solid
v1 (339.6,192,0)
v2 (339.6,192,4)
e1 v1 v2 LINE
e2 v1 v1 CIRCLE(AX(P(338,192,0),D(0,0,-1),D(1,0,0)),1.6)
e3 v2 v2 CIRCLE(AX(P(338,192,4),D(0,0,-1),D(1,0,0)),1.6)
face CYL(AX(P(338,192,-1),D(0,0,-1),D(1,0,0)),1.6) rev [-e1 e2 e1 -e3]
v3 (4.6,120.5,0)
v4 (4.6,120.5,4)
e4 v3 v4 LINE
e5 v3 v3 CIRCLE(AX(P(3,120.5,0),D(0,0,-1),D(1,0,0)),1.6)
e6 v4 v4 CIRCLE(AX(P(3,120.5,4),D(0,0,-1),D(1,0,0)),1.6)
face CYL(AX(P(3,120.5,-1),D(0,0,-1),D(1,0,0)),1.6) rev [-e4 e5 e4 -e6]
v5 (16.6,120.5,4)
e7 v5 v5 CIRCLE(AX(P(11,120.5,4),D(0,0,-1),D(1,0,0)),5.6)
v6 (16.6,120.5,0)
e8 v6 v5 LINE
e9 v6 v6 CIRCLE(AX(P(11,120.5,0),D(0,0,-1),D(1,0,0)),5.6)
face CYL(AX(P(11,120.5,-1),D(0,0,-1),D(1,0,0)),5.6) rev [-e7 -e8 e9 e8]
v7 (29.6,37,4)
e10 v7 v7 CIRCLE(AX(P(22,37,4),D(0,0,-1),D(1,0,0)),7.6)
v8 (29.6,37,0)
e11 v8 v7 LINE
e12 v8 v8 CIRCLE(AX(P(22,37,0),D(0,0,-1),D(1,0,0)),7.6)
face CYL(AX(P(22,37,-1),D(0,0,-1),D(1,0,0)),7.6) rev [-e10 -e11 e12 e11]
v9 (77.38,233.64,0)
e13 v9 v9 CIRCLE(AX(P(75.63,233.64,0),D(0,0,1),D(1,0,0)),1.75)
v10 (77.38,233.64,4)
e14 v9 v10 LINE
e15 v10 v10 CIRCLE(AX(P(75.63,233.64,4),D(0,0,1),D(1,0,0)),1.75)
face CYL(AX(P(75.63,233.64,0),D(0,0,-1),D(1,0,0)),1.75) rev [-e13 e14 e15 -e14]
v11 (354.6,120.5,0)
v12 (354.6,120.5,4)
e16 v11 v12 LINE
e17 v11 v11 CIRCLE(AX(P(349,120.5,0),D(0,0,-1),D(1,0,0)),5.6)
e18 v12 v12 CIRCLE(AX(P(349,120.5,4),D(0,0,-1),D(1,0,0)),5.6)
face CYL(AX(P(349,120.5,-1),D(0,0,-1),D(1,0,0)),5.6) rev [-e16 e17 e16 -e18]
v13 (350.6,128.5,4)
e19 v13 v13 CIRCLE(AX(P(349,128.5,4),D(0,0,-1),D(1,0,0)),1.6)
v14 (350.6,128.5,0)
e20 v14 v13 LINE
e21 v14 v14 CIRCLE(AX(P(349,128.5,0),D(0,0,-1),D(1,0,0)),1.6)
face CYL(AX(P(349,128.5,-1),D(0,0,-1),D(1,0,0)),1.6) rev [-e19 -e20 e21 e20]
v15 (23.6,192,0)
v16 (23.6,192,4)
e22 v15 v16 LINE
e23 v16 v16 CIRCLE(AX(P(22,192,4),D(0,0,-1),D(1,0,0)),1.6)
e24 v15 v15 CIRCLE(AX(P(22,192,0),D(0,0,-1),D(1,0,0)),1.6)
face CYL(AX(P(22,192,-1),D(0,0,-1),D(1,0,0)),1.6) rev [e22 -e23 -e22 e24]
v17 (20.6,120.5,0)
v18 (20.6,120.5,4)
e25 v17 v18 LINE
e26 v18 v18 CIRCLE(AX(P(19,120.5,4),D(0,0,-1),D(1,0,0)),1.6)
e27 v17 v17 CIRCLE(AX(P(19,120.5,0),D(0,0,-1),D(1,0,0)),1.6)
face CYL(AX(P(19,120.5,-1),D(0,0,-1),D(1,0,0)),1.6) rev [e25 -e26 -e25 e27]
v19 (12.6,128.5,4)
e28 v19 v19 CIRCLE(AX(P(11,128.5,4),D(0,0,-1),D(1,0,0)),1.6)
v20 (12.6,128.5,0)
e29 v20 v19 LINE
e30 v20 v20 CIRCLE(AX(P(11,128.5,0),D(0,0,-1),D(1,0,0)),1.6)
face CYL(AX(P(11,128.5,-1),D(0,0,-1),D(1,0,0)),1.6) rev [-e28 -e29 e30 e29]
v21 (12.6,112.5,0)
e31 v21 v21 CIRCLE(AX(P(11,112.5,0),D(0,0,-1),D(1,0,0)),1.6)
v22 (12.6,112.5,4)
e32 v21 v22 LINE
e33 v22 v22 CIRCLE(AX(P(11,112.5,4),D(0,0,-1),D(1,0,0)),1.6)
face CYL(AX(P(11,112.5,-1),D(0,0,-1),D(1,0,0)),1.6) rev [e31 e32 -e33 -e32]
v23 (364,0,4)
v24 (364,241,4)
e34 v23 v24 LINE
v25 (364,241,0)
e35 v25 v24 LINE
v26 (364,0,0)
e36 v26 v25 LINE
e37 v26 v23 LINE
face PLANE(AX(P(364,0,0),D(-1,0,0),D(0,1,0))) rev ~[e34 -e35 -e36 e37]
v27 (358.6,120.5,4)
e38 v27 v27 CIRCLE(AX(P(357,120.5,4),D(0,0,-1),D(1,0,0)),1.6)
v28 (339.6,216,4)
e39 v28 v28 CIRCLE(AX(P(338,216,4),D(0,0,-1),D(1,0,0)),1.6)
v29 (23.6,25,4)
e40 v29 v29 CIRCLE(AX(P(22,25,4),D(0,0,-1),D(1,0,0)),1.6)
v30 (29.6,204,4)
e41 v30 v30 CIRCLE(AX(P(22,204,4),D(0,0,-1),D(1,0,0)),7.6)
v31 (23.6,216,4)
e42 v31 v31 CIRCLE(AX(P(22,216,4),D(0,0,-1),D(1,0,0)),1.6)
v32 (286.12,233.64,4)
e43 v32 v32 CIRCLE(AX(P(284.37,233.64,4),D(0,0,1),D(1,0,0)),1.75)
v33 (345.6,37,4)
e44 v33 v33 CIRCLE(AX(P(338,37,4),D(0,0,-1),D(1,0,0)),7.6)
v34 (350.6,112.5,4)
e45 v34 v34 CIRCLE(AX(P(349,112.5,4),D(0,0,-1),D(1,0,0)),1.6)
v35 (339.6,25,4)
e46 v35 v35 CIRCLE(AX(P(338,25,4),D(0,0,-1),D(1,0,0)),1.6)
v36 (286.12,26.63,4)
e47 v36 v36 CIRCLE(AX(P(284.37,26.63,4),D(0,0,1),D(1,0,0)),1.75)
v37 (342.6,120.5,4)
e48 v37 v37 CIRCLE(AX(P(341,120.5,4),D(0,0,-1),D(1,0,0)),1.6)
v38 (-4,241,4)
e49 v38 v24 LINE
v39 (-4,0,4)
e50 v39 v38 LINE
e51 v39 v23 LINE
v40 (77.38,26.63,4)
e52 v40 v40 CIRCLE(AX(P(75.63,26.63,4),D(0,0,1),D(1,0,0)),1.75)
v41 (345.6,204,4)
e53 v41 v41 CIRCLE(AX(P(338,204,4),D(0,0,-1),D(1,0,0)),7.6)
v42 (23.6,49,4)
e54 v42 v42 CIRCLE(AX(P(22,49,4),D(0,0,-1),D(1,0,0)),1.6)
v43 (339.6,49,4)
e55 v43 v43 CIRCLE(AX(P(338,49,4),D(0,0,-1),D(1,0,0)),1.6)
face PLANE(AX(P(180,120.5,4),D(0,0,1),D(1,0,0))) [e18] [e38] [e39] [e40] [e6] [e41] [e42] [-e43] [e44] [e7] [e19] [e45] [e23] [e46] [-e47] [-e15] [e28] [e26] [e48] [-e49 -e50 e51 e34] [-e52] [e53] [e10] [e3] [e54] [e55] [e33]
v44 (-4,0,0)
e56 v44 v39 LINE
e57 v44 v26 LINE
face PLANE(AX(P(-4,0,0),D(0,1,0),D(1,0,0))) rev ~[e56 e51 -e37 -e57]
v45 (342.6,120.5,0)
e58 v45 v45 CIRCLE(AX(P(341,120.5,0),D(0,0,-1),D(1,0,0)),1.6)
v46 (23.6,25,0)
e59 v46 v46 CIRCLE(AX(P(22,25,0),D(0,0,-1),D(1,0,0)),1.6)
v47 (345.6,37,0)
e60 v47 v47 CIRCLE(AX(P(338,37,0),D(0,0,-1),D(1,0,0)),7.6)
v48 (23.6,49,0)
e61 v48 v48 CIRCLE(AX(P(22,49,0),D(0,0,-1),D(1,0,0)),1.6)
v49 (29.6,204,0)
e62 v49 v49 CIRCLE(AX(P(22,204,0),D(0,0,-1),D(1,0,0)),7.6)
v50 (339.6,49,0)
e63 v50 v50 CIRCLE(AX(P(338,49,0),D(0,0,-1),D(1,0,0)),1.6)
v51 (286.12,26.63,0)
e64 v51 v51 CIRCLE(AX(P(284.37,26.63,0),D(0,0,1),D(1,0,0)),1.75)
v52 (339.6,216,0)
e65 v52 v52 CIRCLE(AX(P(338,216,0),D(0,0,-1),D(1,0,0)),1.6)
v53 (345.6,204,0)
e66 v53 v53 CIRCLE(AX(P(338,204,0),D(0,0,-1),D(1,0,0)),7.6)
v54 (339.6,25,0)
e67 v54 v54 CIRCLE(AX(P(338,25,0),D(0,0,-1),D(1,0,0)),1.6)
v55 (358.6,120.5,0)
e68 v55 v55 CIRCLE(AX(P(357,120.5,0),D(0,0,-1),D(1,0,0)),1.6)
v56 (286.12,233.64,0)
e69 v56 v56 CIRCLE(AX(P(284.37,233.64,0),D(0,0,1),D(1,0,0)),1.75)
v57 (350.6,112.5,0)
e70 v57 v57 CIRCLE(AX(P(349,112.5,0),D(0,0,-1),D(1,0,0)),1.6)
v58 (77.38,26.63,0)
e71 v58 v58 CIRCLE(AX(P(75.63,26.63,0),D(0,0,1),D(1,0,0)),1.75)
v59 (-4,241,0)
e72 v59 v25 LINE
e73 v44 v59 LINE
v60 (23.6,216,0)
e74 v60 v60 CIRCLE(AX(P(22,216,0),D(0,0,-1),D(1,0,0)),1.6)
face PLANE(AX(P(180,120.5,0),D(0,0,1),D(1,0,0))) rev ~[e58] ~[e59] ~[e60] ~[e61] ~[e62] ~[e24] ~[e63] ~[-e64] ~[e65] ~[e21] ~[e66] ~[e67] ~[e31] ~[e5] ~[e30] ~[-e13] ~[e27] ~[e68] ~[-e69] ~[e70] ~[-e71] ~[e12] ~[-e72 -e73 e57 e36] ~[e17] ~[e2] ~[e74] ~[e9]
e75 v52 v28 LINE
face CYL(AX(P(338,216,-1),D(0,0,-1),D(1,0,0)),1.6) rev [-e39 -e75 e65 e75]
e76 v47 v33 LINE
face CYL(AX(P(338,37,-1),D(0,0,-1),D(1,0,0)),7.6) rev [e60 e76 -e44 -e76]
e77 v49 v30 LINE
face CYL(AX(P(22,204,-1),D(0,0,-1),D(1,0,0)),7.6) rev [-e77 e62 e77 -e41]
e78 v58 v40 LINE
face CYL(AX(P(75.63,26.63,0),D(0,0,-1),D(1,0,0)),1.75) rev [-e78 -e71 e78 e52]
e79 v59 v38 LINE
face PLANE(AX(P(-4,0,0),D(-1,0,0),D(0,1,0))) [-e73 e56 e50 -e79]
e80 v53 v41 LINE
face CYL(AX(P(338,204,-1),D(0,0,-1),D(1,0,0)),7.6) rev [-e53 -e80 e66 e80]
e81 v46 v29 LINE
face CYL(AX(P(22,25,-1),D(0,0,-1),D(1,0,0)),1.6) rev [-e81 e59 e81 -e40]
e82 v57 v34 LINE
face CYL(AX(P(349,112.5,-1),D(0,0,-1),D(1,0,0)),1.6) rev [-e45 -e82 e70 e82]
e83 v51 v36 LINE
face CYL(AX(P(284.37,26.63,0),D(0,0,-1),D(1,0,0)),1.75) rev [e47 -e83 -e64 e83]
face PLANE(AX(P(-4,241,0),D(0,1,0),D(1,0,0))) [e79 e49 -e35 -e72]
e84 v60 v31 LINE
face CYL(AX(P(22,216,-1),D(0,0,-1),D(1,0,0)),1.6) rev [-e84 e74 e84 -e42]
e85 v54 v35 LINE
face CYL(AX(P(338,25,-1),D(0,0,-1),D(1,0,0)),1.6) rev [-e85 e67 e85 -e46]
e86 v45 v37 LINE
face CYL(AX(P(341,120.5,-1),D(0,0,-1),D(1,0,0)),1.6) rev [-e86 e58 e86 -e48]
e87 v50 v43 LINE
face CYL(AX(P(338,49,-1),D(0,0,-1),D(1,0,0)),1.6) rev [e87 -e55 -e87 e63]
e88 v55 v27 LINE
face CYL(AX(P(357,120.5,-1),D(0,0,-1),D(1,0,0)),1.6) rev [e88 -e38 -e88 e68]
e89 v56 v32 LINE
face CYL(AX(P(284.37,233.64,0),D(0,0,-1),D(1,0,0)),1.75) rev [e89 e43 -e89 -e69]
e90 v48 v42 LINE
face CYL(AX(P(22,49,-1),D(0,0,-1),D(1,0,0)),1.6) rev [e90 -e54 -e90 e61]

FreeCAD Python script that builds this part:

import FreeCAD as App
import Part
import Sketcher


def add_polygon(sketch, points):
    """Adds a closed chain of lines whose ends are joined by coincident constraints."""
    first, n = sketch.GeometryCount, len(points)
    for a, b in zip(points, points[1:] + points[:1]):
        sketch.addGeometry(Part.LineSegment(App.Vector(*a, 0), App.Vector(*b, 0)), False)
    for i in range(n):
        sketch.addConstraint(Sketcher.Constraint("Coincident", first + i, 2, first + (i + 1) % n, 1))

doc = App.newDocument("Part")
body = doc.addObject("PartDesign::Body", "Body")

sketch1 = body.newObject("Sketcher::SketchObject", "Sketch")
sketch1.AttachmentSupport = (doc.getObject("XY_Plane"), [""])
sketch1.MapMode = "FlatFace"
sketch1.addGeometry(Part.Circle(App.Vector(75.6, 233.6, 0), App.Vector(0, 0, 1), 1.8), False)
sketch1.addConstraint(Sketcher.Constraint("Diameter", 0, 3.5))
sketch1.addConstraint(Sketcher.Constraint("DistanceX", -1, 1, 0, 3, 75.63))
sketch1.addConstraint(Sketcher.Constraint("DistanceY", -1, 1, 0, 3, 233.64))
pad1 = body.newObject("PartDesign::Pad", "Pad")
pad1.Profile = sketch1
pad1.Length = 4
body2 = doc.addObject("PartDesign::Body", "Body001")

sketch2 = body2.newObject("Sketcher::SketchObject", "Sketch001")
sketch2.AttachmentSupport = (doc.getObject("XY_Plane001"), [""])
sketch2.MapMode = "FlatFace"
sketch2.addGeometry(Part.Circle(App.Vector(284.4, 233.6, 0), App.Vector(0, 0, 1), 1.8), False)
sketch2.addConstraint(Sketcher.Constraint("Diameter", 0, 3.5))
sketch2.addConstraint(Sketcher.Constraint("DistanceX", -1, 1, 0, 3, 284.37))
sketch2.addConstraint(Sketcher.Constraint("DistanceY", -1, 1, 0, 3, 233.64))
pad2 = body2.newObject("PartDesign::Pad", "Pad001")
pad2.Profile = sketch2
pad2.Length = 4
body3 = doc.addObject("PartDesign::Body", "Body002")

sketch3 = body3.newObject("Sketcher::SketchObject", "Sketch002")
sketch3.AttachmentSupport = (doc.getObject("XY_Plane002"), [""])
sketch3.MapMode = "FlatFace"
sketch3.addGeometry(Part.Circle(App.Vector(284.4, 26.6, 0), App.Vector(0, 0, 1), 1.8), False)
sketch3.addConstraint(Sketcher.Constraint("Diameter", 0, 3.5))
sketch3.addConstraint(Sketcher.Constraint("DistanceX", -1, 1, 0, 3, 284.37))
sketch3.addConstraint(Sketcher.Constraint("DistanceY", -1, 1, 0, 3, 26.63))
pad3 = body3.newObject("PartDesign::Pad", "Pad002")
pad3.Profile = sketch3
pad3.Length = 4
body4 = doc.addObject("PartDesign::Body", "Body003")
body4.AllowCompound = True

sketch4 = body4.newObject("Sketcher::SketchObject", "Sketch003")
sketch4.AttachmentSupport = (doc.getObject("XY_Plane003"), [""])
sketch4.MapMode = "FlatFace"
sketch4.addGeometry(Part.Circle(App.Vector(75.6, 26.6, 0), App.Vector(0, 0, 1), 1.8), False)
sketch4.addConstraint(Sketcher.Constraint("Diameter", 0, 3.5))
sketch4.addConstraint(Sketcher.Constraint("DistanceX", -1, 1, 0, 3, 75.63))
sketch4.addConstraint(Sketcher.Constraint("DistanceY", -1, 1, 0, 3, 26.63))
pad4 = body4.newObject("PartDesign::Pad", "Pad003")
pad4.Profile = sketch4
pad4.Length = 4
doc.recompute()

boolean = body4.newObject("PartDesign::Boolean", "Boolean")
boolean.Type = "Fuse"
boolean.addObjects([body])
doc.recompute()

boolean2 = body4.newObject("PartDesign::Boolean", "Boolean001")
boolean2.Type = "Fuse"
boolean2.addObjects([body2])
doc.recompute()

boolean3 = body4.newObject("PartDesign::Boolean", "Boolean002")
boolean3.Type = "Fuse"
boolean3.addObjects([body3])
body5 = doc.addObject("PartDesign::Body", "Body004")

sketch5 = body5.newObject("Sketcher::SketchObject", "Sketch004")
sketch5.AttachmentSupport = (doc.getObject("XY_Plane004"), [""])
sketch5.MapMode = "FlatFace"
sketch5.AttachmentOffset = App.Placement(App.Vector(0, 0, -1), App.Rotation())
sketch5.addGeometry(Part.Circle(App.Vector(338, 25, 0), App.Vector(0, 0, 1), 1.6), False)
sketch5.addConstraint(Sketcher.Constraint("Diameter", 0, 3.2))
sketch5.addConstraint(Sketcher.Constraint("DistanceX", -1, 1, 0, 3, 338.0))
sketch5.addConstraint(Sketcher.Constraint("DistanceY", -1, 1, 0, 3, 25.0))
pad5 = body5.newObject("PartDesign::Pad", "Pad004")
pad5.Profile = sketch5
pad5.Length = 10
body6 = doc.addObject("PartDesign::Body", "Body005")

sketch6 = body6.newObject("Sketcher::SketchObject", "Sketch005")
sketch6.AttachmentSupport = (doc.getObject("XY_Plane005"), [""])
sketch6.MapMode = "FlatFace"
sketch6.AttachmentOffset = App.Placement(App.Vector(0, 0, -1), App.Rotation())
sketch6.addGeometry(Part.Circle(App.Vector(338, 49, 0), App.Vector(0, 0, 1), 1.6), False)
sketch6.addConstraint(Sketcher.Constraint("Diameter", 0, 3.2))
sketch6.addConstraint(Sketcher.Constraint("DistanceX", -1, 1, 0, 3, 338.0))
sketch6.addConstraint(Sketcher.Constraint("DistanceY", -1, 1, 0, 3, 49.0))
pad6 = body6.newObject("PartDesign::Pad", "Pad005")
pad6.Profile = sketch6
pad6.Length = 10
body7 = doc.addObject("PartDesign::Body", "Body006")

sketch7 = body7.newObject("Sketcher::SketchObject", "Sketch006")
sketch7.AttachmentSupport = (doc.getObject("XY_Plane006"), [""])
sketch7.MapMode = "FlatFace"
sketch7.AttachmentOffset = App.Placement(App.Vector(0, 0, -1), App.Rotation())
sketch7.addGeometry(Part.Circle(App.Vector(338, 192, 0), App.Vector(0, 0, 1), 1.6), False)
sketch7.addConstraint(Sketcher.Constraint("Diameter", 0, 3.2))
sketch7.addConstraint(Sketcher.Constraint("DistanceX", -1, 1, 0, 3, 338.0))
sketch7.addConstraint(Sketcher.Constraint("DistanceY", -1, 1, 0, 3, 192.0))
pad7 = body7.newObject("PartDesign::Pad", "Pad006")
pad7.Profile = sketch7
pad7.Length = 10
body8 = doc.addObject("PartDesign::Body", "Body007")

sketch8 = body8.newObject("Sketcher::SketchObject", "Sketch007")
sketch8.AttachmentSupport = (doc.getObject("XY_Plane007"), [""])
sketch8.MapMode = "FlatFace"
sketch8.AttachmentOffset = App.Placement(App.Vector(0, 0, -1), App.Rotation())
sketch8.addGeometry(Part.Circle(App.Vector(338, 216, 0), App.Vector(0, 0, 1), 1.6), False)
sketch8.addConstraint(Sketcher.Constraint("Diameter", 0, 3.2))
sketch8.addConstraint(Sketcher.Constraint("DistanceX", -1, 1, 0, 3, 338.0))
sketch8.addConstraint(Sketcher.Constraint("DistanceY", -1, 1, 0, 3, 216.0))
pad8 = body8.newObject("PartDesign::Pad", "Pad007")
pad8.Profile = sketch8
pad8.Length = 10
body9 = doc.addObject("PartDesign::Body", "Body008")

sketch9 = body9.newObject("Sketcher::SketchObject", "Sketch008")
sketch9.AttachmentSupport = (doc.getObject("XY_Plane008"), [""])
sketch9.MapMode = "FlatFace"
sketch9.AttachmentOffset = App.Placement(App.Vector(0, 0, -1), App.Rotation())
sketch9.addGeometry(Part.Circle(App.Vector(349, 128.5, 0), App.Vector(0, 0, 1), 1.6), False)
sketch9.addConstraint(Sketcher.Constraint("Diameter", 0, 3.2))
sketch9.addConstraint(Sketcher.Constraint("DistanceX", -1, 1, 0, 3, 349.0))
sketch9.addConstraint(Sketcher.Constraint("DistanceY", -1, 1, 0, 3, 128.5))
pad9 = body9.newObject("PartDesign::Pad", "Pad008")
pad9.Profile = sketch9
pad9.Length = 10
body10 = doc.addObject("PartDesign::Body", "Body009")

sketch10 = body10.newObject("Sketcher::SketchObject", "Sketch009")
sketch10.AttachmentSupport = (doc.getObject("XY_Plane009"), [""])
sketch10.MapMode = "FlatFace"
sketch10.AttachmentOffset = App.Placement(App.Vector(0, 0, -1), App.Rotation())
sketch10.addGeometry(Part.Circle(App.Vector(349, 112.5, 0), App.Vector(0, 0, 1), 1.6), False)
sketch10.addConstraint(Sketcher.Constraint("Diameter", 0, 3.2))
sketch10.addConstraint(Sketcher.Constraint("DistanceX", -1, 1, 0, 3, 349.0))
sketch10.addConstraint(Sketcher.Constraint("DistanceY", -1, 1, 0, 3, 112.5))
pad10 = body10.newObject("PartDesign::Pad", "Pad009")
pad10.Profile = sketch10
pad10.Length = 10
body11 = doc.addObject("PartDesign::Body", "Body010")

sketch11 = body11.newObject("Sketcher::SketchObject", "Sketch010")
sketch11.AttachmentSupport = (doc.getObject("XY_Plane010"), [""])
sketch11.MapMode = "FlatFace"
sketch11.AttachmentOffset = App.Placement(App.Vector(0, 0, -1), App.Rotation())
sketch11.addGeometry(Part.Circle(App.Vector(357, 120.5, 0), App.Vector(0, 0, 1), 1.6), False)
sketch11.addConstraint(Sketcher.Constraint("Diameter", 0, 3.2))
sketch11.addConstraint(Sketcher.Constraint("DistanceX", -1, 1, 0, 3, 357.0))
sketch11.addConstraint(Sketcher.Constraint("DistanceY", -1, 1, 0, 3, 120.5))
pad11 = body11.newObject("PartDesign::Pad", "Pad010")
pad11.Profile = sketch11
pad11.Length = 10
body12 = doc.addObject("PartDesign::Body", "Body011")

sketch12 = body12.newObject("Sketcher::SketchObject", "Sketch011")
sketch12.AttachmentSupport = (doc.getObject("XY_Plane011"), [""])
sketch12.MapMode = "FlatFace"
sketch12.AttachmentOffset = App.Placement(App.Vector(0, 0, -1), App.Rotation())
sketch12.addGeometry(Part.Circle(App.Vector(341, 120.5, 0), App.Vector(0, 0, 1), 1.6), False)
sketch12.addConstraint(Sketcher.Constraint("Diameter", 0, 3.2))
sketch12.addConstraint(Sketcher.Constraint("DistanceX", -1, 1, 0, 3, 341.0))
sketch12.addConstraint(Sketcher.Constraint("DistanceY", -1, 1, 0, 3, 120.5))
pad12 = body12.newObject("PartDesign::Pad", "Pad011")
pad12.Profile = sketch12
pad12.Length = 10
body13 = doc.addObject("PartDesign::Body", "Body012")

sketch13 = body13.newObject("Sketcher::SketchObject", "Sketch012")
sketch13.AttachmentSupport = (doc.getObject("XY_Plane012"), [""])
sketch13.MapMode = "FlatFace"
sketch13.AttachmentOffset = App.Placement(App.Vector(0, 0, -1), App.Rotation())
sketch13.addGeometry(Part.Circle(App.Vector(349, 120, 0), App.Vector(0, 0, 1), 6), False)
sketch13.addConstraint(Sketcher.Constraint("Diameter", 0, 11.2))
sketch13.addConstraint(Sketcher.Constraint("DistanceX", -1, 1, 0, 3, 349.0))
sketch13.addConstraint(Sketcher.Constraint("DistanceY", -1, 1, 0, 3, 120.5))
pad13 = body13.newObject("PartDesign::Pad", "Pad012")
pad13.Profile = sketch13
pad13.Length = 10
body14 = doc.addObject("PartDesign::Body", "Body013")

sketch14 = body14.newObject("Sketcher::SketchObject", "Sketch013")
sketch14.AttachmentSupport = (doc.getObject("XY_Plane013"), [""])
sketch14.MapMode = "FlatFace"
sketch14.AttachmentOffset = App.Placement(App.Vector(0, 0, -1), App.Rotation())
sketch14.addGeometry(Part.Circle(App.Vector(22, 216, 0), App.Vector(0, 0, 1), 1.6), False)
sketch14.addConstraint(Sketcher.Constraint("Diameter", 0, 3.2))
sketch14.addConstraint(Sketcher.Constraint("DistanceX", -1, 1, 0, 3, 22.0))
sketch14.addConstraint(Sketcher.Constraint("DistanceY", -1, 1, 0, 3, 216.0))
pad14 = body14.newObject("PartDesign::Pad", "Pad013")
pad14.Profile = sketch14
pad14.Length = 10
body15 = doc.addObject("PartDesign::Body", "Body014")

sketch15 = body15.newObject("Sketcher::SketchObject", "Sketch014")
sketch15.AttachmentSupport = (doc.getObject("XY_Plane014"), [""])
sketch15.MapMode = "FlatFace"
sketch15.AttachmentOffset = App.Placement(App.Vector(0, 0, -1), App.Rotation())
sketch15.addGeometry(Part.Circle(App.Vector(11, 112.5, 0), App.Vector(0, 0, 1), 1.6), False)
sketch15.addConstraint(Sketcher.Constraint("Diameter", 0, 3.2))
sketch15.addConstraint(Sketcher.Constraint("DistanceX", -1, 1, 0, 3, 11.0))
sketch15.addConstraint(Sketcher.Constraint("DistanceY", -1, 1, 0, 3, 112.5))
pad15 = body15.newObject("PartDesign::Pad", "Pad014")
pad15.Profile = sketch15
pad15.Length = 10
body16 = doc.addObject("PartDesign::Body", "Body015")

sketch16 = body16.newObject("Sketcher::SketchObject", "Sketch015")
sketch16.AttachmentSupport = (doc.getObject("XY_Plane015"), [""])
sketch16.MapMode = "FlatFace"
sketch16.AttachmentOffset = App.Placement(App.Vector(0, 0, -1), App.Rotation())
sketch16.addGeometry(Part.Circle(App.Vector(19, 120.5, 0), App.Vector(0, 0, 1), 1.6), False)
sketch16.addConstraint(Sketcher.Constraint("Diameter", 0, 3.2))
sketch16.addConstraint(Sketcher.Constraint("DistanceX", -1, 1, 0, 3, 19.0))
sketch16.addConstraint(Sketcher.Constraint("DistanceY", -1, 1, 0, 3, 120.5))
pad16 = body16.newObject("PartDesign::Pad", "Pad015")
pad16.Profile = sketch16
pad16.Length = 10
body17 = doc.addObject("PartDesign::Body", "Body016")

sketch17 = body17.newObject("Sketcher::SketchObject", "Sketch016")
sketch17.AttachmentSupport = (doc.getObject("XY_Plane016"), [""])
sketch17.MapMode = "FlatFace"
sketch17.AttachmentOffset = App.Placement(App.Vector(0, 0, -1), App.Rotation())
sketch17.addGeometry(Part.Circle(App.Vector(11, 128.5, 0), App.Vector(0, 0, 1), 1.6), False)
sketch17.addConstraint(Sketcher.Constraint("Diameter", 0, 3.2))
sketch17.addConstraint(Sketcher.Constraint("DistanceX", -1, 1, 0, 3, 11.0))
sketch17.addConstraint(Sketcher.Constraint("DistanceY", -1, 1, 0, 3, 128.5))
pad17 = body17.newObject("PartDesign::Pad", "Pad016")
pad17.Profile = sketch17
pad17.Length = 10
body18 = doc.addObject("PartDesign::Body", "Body017")

sketch18 = body18.newObject("Sketcher::SketchObject", "Sketch017")
sketch18.AttachmentSupport = (doc.getObject("XY_Plane017"), [""])
sketch18.MapMode = "FlatFace"
sketch18.AttachmentOffset = App.Placement(App.Vector(0, 0, -1), App.Rotation())
sketch18.addGeometry(Part.Circle(App.Vector(3, 120.5, 0), App.Vector(0, 0, 1), 1.6), False)
sketch18.addConstraint(Sketcher.Constraint("Diameter", 0, 3.2))
sketch18.addConstraint(Sketcher.Constraint("DistanceX", -1, 1, 0, 3, 3.0))
sketch18.addConstraint(Sketcher.Constraint("DistanceY", -1, 1, 0, 3, 120.5))
pad18 = body18.newObject("PartDesign::Pad", "Pad017")
pad18.Profile = sketch18
pad18.Length = 10
body19 = doc.addObject("PartDesign::Body", "Body018")

sketch19 = body19.newObject("Sketcher::SketchObject", "Sketch018")
sketch19.AttachmentSupport = (doc.getObject("XY_Plane018"), [""])
sketch19.MapMode = "FlatFace"
sketch19.AttachmentOffset = App.Placement(App.Vector(0, 0, -1), App.Rotation())
sketch19.addGeometry(Part.Circle(App.Vector(11, 120, 0), App.Vector(0, 0, 1), 6), False)
sketch19.addConstraint(Sketcher.Constraint("Diameter", 0, 11.2))
sketch19.addConstraint(Sketcher.Constraint("DistanceX", -1, 1, 0, 3, 11.0))
sketch19.addConstraint(Sketcher.Constraint("DistanceY", -1, 1, 0, 3, 120.5))
pad19 = body19.newObject("PartDesign::Pad", "Pad018")
pad19.Profile = sketch19
pad19.Length = 10
body20 = doc.addObject("PartDesign::Body", "Body019")

sketch20 = body20.newObject("Sketcher::SketchObject", "Sketch019")
sketch20.AttachmentSupport = (doc.getObject("XY_Plane019"), [""])
sketch20.MapMode = "FlatFace"
sketch20.AttachmentOffset = App.Placement(App.Vector(0, 0, -1), App.Rotation())
sketch20.addGeometry(Part.Circle(App.Vector(22, 192, 0), App.Vector(0, 0, 1), 1.6), False)
sketch20.addConstraint(Sketcher.Constraint("Diameter", 0, 3.2))
sketch20.addConstraint(Sketcher.Constraint("DistanceX", -1, 1, 0, 3, 22.0))
sketch20.addConstraint(Sketcher.Constraint("DistanceY", -1, 1, 0, 3, 192.0))
pad20 = body20.newObject("PartDesign::Pad", "Pad019")
pad20.Profile = sketch20
pad20.Length = 10
body21 = doc.addObject("PartDesign::Body", "Body020")

sketch21 = body21.newObject("Sketcher::SketchObject", "Sketch020")
sketch21.AttachmentSupport = (doc.getObject("XY_Plane020"), [""])
sketch21.MapMode = "FlatFace"
sketch21.AttachmentOffset = App.Placement(App.Vector(0, 0, -1), App.Rotation())
sketch21.addGeometry(Part.Circle(App.Vector(22, 49, 0), App.Vector(0, 0, 1), 1.6), False)
sketch21.addConstraint(Sketcher.Constraint("Diameter", 0, 3.2))
sketch21.addConstraint(Sketcher.Constraint("DistanceX", -1, 1, 0, 3, 22.0))
sketch21.addConstraint(Sketcher.Constraint("DistanceY", -1, 1, 0, 3, 49.0))
pad21 = body21.newObject("PartDesign::Pad", "Pad020")
pad21.Profile = sketch21
pad21.Length = 10
body22 = doc.addObject("PartDesign::Body", "Body021")

sketch22 = body22.newObject("Sketcher::SketchObject", "Sketch021")
sketch22.AttachmentSupport = (doc.getObject("XY_Plane021"), [""])
sketch22.MapMode = "FlatFace"
sketch22.AttachmentOffset = App.Placement(App.Vector(0, 0, -1), App.Rotation())
sketch22.addGeometry(Part.Circle(App.Vector(22, 25, 0), App.Vector(0, 0, 1), 1.6), False)
sketch22.addConstraint(Sketcher.Constraint("Diameter", 0, 3.2))
sketch22.addConstraint(Sketcher.Constraint("DistanceX", -1, 1, 0, 3, 22.0))
sketch22.addConstraint(Sketcher.Constraint("DistanceY", -1, 1, 0, 3, 25.0))
pad22 = body22.newObject("PartDesign::Pad", "Pad021")
pad22.Profile = sketch22
pad22.Length = 10
body23 = doc.addObject("PartDesign::Body", "Body022")

sketch23 = body23.newObject("Sketcher::SketchObject", "Sketch022")
sketch23.AttachmentSupport = (doc.getObject("XY_Plane022"), [""])
sketch23.MapMode = "FlatFace"
sketch23.AttachmentOffset = App.Placement(App.Vector(0, 0, -1), App.Rotation())
sketch23.addGeometry(Part.Circle(App.Vector(338, 204, 0), App.Vector(0, 0, 1), 8), False)
sketch23.addConstraint(Sketcher.Constraint("Diameter", 0, 15.2))
sketch23.addConstraint(Sketcher.Constraint("DistanceX", -1, 1, 0, 3, 338.0))
sketch23.addConstraint(Sketcher.Constraint("DistanceY", -1, 1, 0, 3, 204.0))
pad23 = body23.newObject("PartDesign::Pad", "Pad022")
pad23.Profile = sketch23
pad23.Length = 10
body24 = doc.addObject("PartDesign::Body", "Body023")

sketch24 = body24.newObject("Sketcher::SketchObject", "Sketch023")
sketch24.AttachmentSupport = (doc.getObject("XY_Plane023"), [""])
sketch24.MapMode = "FlatFace"
sketch24.AttachmentOffset = App.Placement(App.Vector(0, 0, -1), App.Rotation())
sketch24.addGeometry(Part.Circle(App.Vector(338, 37, 0), App.Vector(0, 0, 1), 8), False)
sketch24.addConstraint(Sketcher.Constraint("Diameter", 0, 15.2))
sketch24.addConstraint(Sketcher.Constraint("DistanceX", -1, 1, 0, 3, 338.0))
sketch24.addConstraint(Sketcher.Constraint("DistanceY", -1, 1, 0, 3, 37.0))
pad24 = body24.newObject("PartDesign::Pad", "Pad023")
pad24.Profile = sketch24
pad24.Length = 10
body25 = doc.addObject("PartDesign::Body", "Body024")

sketch25 = body25.newObject("Sketcher::SketchObject", "Sketch024")
sketch25.AttachmentSupport = (doc.getObject("XY_Plane024"), [""])
sketch25.MapMode = "FlatFace"
sketch25.AttachmentOffset = App.Placement(App.Vector(0, 0, -1), App.Rotation())
sketch25.addGeometry(Part.Circle(App.Vector(22, 204, 0), App.Vector(0, 0, 1), 8), False)
sketch25.addConstraint(Sketcher.Constraint("Diameter", 0, 15.2))
sketch25.addConstraint(Sketcher.Constraint("DistanceX", -1, 1, 0, 3, 22.0))
sketch25.addConstraint(Sketcher.Constraint("DistanceY", -1, 1, 0, 3, 204.0))
pad25 = body25.newObject("PartDesign::Pad", "Pad024")
pad25.Profile = sketch25
pad25.Length = 10
body26 = doc.addObject("PartDesign::Body", "Body025")

sketch26 = body26.newObject("Sketcher::SketchObject", "Sketch025")
sketch26.AttachmentSupport = (doc.getObject("XY_Plane025"), [""])
sketch26.MapMode = "FlatFace"
sketch26.AttachmentOffset = App.Placement(App.Vector(0, 0, -1), App.Rotation())
sketch26.addGeometry(Part.Circle(App.Vector(22, 37, 0), App.Vector(0, 0, 1), 8), False)
sketch26.addConstraint(Sketcher.Constraint("Diameter", 0, 15.2))
sketch26.addConstraint(Sketcher.Constraint("DistanceX", -1, 1, 0, 3, 22.0))
sketch26.addConstraint(Sketcher.Constraint("DistanceY", -1, 1, 0, 3, 37.0))
pad26 = body26.newObject("PartDesign::Pad", "Pad025")
pad26.Profile = sketch26
pad26.Length = 10
body27 = doc.addObject("PartDesign::Body", "Body026")

sketch27 = body27.newObject("Sketcher::SketchObject", "Sketch026")
sketch27.AttachmentSupport = (doc.getObject("XY_Plane026"), [""])
sketch27.MapMode = "FlatFace"
add_polygon(sketch27, [(-4, 241), (-4, 0), (364, 0), (364, 241)])
sketch27.addConstraint(Sketcher.Constraint("Vertical", 0))
sketch27.addConstraint(Sketcher.Constraint("Horizontal", 1))
sketch27.addConstraint(Sketcher.Constraint("Vertical", 2))
sketch27.addConstraint(Sketcher.Constraint("Horizontal", 3))
sketch27.addConstraint(Sketcher.Constraint("PointOnObject", 0, 2, -1))
sketch27.addConstraint(Sketcher.Constraint("DistanceX", 1, 1, 1, 2, 368.0))
sketch27.addConstraint(Sketcher.Constraint("DistanceY", 0, 2, 0, 1, 241.0))
sketch27.addConstraint(Sketcher.Constraint("DistanceX", 0, 2, -1, 1, 4.0))
pad27 = body27.newObject("PartDesign::Pad", "Pad026")
pad27.Profile = sketch27
pad27.Length = 4
doc.recompute()

boolean4 = body27.newObject("PartDesign::Boolean", "Boolean003")
boolean4.Type = "Cut"
boolean4.addObjects([body26])
doc.recompute()

boolean5 = body27.newObject("PartDesign::Boolean", "Boolean004")
boolean5.Type = "Cut"
boolean5.addObjects([body25])
doc.recompute()

boolean6 = body27.newObject("PartDesign::Boolean", "Boolean005")
boolean6.Type = "Cut"
boolean6.addObjects([body24])
doc.recompute()

boolean7 = body27.newObject("PartDesign::Boolean", "Boolean006")
boolean7.Type = "Cut"
boolean7.addObjects([body23])
doc.recompute()

boolean8 = body27.newObject("PartDesign::Boolean", "Boolean007")
boolean8.Type = "Cut"
boolean8.addObjects([body22])
doc.recompute()

boolean9 = body27.newObject("PartDesign::Boolean", "Boolean008")
boolean9.Type = "Cut"
boolean9.addObjects([body21])
doc.recompute()

boolean10 = body27.newObject("PartDesign::Boolean", "Boolean009")
boolean10.Type = "Cut"
boolean10.addObjects([body20])
doc.recompute()

boolean11 = body27.newObject("PartDesign::Boolean", "Boolean010")
boolean11.Type = "Cut"
boolean11.addObjects([body19])
doc.recompute()

boolean12 = body27.newObject("PartDesign::Boolean", "Boolean011")
boolean12.Type = "Cut"
boolean12.addObjects([body18])
doc.recompute()

boolean13 = body27.newObject("PartDesign::Boolean", "Boolean012")
boolean13.Type = "Cut"
boolean13.addObjects([body17])
doc.recompute()

boolean14 = body27.newObject("PartDesign::Boolean", "Boolean013")
boolean14.Type = "Cut"
boolean14.addObjects([body16])
doc.recompute()

boolean15 = body27.newObject("PartDesign::Boolean", "Boolean014")
boolean15.Type = "Cut"
boolean15.addObjects([body15])
doc.recompute()

boolean16 = body27.newObject("PartDesign::Boolean", "Boolean015")
boolean16.Type = "Cut"
boolean16.addObjects([body14])
doc.recompute()

boolean17 = body27.newObject("PartDesign::Boolean", "Boolean016")
boolean17.Type = "Cut"
boolean17.addObjects([body13])
doc.recompute()

boolean18 = body27.newObject("PartDesign::Boolean", "Boolean017")
boolean18.Type = "Cut"
boolean18.addObjects([body12])
doc.recompute()

boolean19 = body27.newObject("PartDesign::Boolean", "Boolean018")
boolean19.Type = "Cut"
boolean19.addObjects([body11])
doc.recompute()

boolean20 = body27.newObject("PartDesign::Boolean", "Boolean019")
boolean20.Type = "Cut"
boolean20.addObjects([body10])
doc.recompute()

boolean21 = body27.newObject("PartDesign::Boolean", "Boolean020")
boolean21.Type = "Cut"
boolean21.addObjects([body9])
doc.recompute()

boolean22 = body27.newObject("PartDesign::Boolean", "Boolean021")
boolean22.Type = "Cut"
boolean22.addObjects([body8])
doc.recompute()

boolean23 = body27.newObject("PartDesign::Boolean", "Boolean022")
boolean23.Type = "Cut"
boolean23.addObjects([body7])
doc.recompute()

boolean24 = body27.newObject("PartDesign::Boolean", "Boolean023")
boolean24.Type = "Cut"
boolean24.addObjects([body6])
doc.recompute()

boolean25 = body27.newObject("PartDesign::Boolean", "Boolean024")
boolean25.Type = "Cut"
boolean25.addObjects([body5])
doc.recompute()

boolean26 = body27.newObject("PartDesign::Boolean", "Boolean025")
boolean26.Type = "Cut"
boolean26.addObjects([body4])

doc.recompute()
